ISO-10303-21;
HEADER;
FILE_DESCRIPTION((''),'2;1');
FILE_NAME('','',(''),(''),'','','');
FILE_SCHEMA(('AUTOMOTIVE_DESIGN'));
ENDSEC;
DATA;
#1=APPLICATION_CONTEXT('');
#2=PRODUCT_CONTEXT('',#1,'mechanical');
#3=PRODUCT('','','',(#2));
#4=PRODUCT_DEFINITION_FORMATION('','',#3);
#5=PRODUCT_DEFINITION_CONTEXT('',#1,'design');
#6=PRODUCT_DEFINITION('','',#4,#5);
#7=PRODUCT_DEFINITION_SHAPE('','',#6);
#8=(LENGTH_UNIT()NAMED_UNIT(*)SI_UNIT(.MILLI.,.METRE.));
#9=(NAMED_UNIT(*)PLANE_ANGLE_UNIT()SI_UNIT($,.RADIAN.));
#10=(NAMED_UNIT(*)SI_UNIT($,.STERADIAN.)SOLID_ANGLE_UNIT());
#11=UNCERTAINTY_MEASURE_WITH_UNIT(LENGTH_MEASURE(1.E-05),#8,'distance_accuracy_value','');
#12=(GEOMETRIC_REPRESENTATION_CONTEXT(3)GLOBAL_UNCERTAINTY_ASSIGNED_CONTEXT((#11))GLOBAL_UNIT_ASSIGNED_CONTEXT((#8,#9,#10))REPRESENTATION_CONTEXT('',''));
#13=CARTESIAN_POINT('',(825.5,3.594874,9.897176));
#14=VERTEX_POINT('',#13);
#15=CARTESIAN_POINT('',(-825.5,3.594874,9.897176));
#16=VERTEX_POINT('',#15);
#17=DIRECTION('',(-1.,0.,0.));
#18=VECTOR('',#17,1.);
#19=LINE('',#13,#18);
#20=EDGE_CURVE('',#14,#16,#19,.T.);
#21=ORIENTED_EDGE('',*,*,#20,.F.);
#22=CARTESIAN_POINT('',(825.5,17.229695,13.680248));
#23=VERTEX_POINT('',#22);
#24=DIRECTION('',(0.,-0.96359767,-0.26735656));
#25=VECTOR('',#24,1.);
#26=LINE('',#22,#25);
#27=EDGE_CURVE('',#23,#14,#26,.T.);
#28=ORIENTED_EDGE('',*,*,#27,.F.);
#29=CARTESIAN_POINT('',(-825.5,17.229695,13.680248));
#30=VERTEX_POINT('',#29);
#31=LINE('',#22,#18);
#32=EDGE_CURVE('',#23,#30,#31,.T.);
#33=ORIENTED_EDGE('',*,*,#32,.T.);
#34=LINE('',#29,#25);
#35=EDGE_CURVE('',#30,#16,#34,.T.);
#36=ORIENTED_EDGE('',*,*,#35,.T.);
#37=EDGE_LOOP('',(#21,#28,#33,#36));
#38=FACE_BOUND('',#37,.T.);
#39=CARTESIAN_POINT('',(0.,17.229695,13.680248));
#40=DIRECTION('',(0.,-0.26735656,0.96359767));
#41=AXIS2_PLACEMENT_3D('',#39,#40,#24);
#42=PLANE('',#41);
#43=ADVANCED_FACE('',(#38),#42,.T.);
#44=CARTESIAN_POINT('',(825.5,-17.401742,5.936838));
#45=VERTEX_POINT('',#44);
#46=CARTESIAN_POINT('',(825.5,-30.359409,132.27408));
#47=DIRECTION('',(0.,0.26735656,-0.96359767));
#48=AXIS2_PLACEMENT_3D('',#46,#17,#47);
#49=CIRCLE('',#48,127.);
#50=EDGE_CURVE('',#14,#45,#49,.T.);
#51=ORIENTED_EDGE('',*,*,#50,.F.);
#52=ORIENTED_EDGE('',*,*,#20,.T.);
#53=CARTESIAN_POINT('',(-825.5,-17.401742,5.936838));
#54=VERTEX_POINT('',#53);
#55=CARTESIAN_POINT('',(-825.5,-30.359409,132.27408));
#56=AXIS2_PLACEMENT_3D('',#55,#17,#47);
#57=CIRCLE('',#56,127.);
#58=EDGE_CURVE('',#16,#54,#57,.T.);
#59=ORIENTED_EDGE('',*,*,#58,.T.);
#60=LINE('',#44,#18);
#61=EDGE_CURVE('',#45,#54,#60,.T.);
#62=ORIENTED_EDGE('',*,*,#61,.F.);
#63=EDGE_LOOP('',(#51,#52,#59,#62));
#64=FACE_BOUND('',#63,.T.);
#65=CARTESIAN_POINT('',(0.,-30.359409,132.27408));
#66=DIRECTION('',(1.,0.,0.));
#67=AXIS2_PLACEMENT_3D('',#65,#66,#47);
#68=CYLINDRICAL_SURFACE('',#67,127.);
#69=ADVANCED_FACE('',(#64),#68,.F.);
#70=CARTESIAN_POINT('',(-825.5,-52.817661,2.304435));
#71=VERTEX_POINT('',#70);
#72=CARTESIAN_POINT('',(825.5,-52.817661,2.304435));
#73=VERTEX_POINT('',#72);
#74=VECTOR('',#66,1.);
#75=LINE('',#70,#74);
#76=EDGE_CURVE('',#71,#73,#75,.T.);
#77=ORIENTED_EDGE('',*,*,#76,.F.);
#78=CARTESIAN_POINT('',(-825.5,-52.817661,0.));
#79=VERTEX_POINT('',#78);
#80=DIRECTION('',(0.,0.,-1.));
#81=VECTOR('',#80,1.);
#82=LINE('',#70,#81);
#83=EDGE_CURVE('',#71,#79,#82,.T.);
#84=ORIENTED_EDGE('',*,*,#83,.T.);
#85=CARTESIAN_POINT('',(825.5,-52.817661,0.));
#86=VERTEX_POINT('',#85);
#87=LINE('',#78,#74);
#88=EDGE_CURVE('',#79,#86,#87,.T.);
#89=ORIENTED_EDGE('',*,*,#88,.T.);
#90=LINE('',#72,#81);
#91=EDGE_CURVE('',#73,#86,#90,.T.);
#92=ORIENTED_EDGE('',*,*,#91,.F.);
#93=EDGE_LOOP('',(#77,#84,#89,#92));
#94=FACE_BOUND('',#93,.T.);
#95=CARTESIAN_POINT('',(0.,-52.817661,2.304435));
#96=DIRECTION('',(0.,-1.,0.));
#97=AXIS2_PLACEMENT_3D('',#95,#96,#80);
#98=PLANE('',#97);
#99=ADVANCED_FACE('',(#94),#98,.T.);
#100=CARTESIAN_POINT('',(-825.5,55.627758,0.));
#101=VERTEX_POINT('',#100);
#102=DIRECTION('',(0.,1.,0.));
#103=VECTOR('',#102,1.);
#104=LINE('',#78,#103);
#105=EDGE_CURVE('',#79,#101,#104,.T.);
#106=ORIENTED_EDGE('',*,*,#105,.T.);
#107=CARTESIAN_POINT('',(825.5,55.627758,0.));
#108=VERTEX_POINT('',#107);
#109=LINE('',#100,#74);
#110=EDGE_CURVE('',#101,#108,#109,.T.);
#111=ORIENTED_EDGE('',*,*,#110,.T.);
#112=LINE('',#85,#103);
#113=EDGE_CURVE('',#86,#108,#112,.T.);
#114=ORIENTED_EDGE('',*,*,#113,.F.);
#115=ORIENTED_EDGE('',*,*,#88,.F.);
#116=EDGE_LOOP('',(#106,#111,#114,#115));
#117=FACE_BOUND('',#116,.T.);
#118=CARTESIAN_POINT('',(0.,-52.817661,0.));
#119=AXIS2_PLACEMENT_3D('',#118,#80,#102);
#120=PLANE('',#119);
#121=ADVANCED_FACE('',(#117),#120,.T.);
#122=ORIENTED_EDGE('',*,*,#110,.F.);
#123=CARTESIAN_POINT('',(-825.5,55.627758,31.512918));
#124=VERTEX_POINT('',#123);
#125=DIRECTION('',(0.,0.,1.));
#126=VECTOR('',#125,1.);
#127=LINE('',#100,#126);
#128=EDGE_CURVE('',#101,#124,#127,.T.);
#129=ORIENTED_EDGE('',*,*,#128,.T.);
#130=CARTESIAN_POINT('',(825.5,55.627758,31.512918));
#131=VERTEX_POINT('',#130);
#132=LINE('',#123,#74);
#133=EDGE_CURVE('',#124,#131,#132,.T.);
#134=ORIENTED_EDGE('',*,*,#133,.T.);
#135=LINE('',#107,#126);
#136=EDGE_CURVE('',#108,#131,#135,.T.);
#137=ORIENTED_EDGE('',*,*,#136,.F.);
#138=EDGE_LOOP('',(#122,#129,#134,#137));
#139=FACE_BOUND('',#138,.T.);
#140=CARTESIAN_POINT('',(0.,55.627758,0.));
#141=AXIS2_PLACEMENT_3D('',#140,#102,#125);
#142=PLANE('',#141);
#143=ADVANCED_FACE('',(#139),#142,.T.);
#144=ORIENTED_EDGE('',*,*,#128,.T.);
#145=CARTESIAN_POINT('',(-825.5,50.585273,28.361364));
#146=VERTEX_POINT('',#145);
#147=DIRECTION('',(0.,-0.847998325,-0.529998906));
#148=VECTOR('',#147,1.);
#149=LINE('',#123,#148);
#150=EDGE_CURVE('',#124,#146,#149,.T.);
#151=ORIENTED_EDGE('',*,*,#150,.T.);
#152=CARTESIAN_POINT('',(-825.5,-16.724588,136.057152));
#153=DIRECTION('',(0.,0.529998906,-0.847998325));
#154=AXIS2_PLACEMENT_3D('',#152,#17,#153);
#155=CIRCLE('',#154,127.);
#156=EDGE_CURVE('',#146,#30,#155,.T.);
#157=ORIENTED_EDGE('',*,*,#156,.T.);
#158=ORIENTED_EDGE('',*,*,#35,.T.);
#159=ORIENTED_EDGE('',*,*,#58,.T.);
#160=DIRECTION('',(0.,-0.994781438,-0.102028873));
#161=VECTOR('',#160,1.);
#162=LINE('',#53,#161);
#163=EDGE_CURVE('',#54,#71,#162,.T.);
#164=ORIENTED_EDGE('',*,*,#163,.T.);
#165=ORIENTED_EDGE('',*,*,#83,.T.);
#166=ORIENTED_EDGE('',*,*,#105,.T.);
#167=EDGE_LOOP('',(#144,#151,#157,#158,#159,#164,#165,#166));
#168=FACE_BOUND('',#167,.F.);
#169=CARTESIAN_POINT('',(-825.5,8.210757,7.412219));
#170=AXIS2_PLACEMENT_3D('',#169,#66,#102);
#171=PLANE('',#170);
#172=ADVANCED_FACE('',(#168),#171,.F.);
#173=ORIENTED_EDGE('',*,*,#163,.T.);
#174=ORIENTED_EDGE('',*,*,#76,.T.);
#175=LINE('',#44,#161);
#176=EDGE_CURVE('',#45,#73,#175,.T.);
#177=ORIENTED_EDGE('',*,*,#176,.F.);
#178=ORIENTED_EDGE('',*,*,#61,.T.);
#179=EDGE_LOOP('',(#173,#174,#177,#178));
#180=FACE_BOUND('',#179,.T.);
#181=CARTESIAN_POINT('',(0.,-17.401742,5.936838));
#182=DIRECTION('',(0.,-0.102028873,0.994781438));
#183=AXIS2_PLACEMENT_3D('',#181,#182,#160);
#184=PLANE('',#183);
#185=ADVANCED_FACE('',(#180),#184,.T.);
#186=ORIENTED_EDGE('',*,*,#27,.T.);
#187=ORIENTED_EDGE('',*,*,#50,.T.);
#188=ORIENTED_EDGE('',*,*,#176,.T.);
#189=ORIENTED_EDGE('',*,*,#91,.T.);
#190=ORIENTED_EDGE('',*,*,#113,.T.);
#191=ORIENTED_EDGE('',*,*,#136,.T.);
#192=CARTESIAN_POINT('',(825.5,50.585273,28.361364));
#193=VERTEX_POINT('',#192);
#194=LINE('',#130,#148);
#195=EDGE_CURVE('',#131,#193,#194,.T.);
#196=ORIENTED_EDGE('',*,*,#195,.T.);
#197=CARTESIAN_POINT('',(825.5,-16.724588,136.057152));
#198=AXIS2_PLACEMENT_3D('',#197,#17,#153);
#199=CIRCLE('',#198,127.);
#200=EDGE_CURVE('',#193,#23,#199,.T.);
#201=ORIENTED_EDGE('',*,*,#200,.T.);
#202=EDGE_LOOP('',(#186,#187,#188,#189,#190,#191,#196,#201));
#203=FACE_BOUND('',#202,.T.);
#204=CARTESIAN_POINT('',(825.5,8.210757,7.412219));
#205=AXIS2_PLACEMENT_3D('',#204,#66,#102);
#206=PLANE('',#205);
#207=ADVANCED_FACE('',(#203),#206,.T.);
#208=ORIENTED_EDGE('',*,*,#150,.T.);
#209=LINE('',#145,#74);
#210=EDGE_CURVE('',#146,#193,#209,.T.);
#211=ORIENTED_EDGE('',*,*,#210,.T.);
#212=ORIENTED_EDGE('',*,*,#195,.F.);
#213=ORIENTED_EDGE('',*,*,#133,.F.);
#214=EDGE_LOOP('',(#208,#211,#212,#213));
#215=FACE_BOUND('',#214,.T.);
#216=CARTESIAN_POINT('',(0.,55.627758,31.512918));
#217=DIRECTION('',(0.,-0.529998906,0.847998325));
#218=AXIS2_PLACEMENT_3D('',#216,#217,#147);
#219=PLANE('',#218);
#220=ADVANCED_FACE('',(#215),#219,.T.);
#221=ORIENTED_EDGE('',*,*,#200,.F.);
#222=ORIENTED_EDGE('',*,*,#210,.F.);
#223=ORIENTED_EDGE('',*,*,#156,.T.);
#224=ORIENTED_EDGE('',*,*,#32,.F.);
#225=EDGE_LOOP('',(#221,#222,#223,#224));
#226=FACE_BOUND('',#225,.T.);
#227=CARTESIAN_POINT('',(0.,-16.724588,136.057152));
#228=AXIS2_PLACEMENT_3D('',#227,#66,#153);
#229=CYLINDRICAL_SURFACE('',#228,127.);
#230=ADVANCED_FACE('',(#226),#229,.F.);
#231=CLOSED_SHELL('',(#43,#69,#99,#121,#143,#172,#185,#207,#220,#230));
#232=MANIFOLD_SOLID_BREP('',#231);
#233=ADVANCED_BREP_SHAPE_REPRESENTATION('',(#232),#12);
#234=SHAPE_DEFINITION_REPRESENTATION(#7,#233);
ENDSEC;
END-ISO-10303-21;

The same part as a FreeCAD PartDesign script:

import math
import FreeCAD as App
import Part
import Sketcher
Q = App.Units.Quantity

doc = App.newDocument("Part")
body = doc.addObject("PartDesign::Body", "Body")

sketch1 = doc.addObject("Sketcher::SketchObject", "Sketch")
body.addObject(sketch1)
sketch1.AttachmentSupport = (doc.YZ_Plane, [""])
sketch1.MapMode = "FlatFace"
sketch1.addGeometry([
    Part.LineSegment(App.Vector(-17.4, 5.9, 0), App.Vector(-52.8, 2.3, 0)),
    Part.LineSegment(App.Vector(-52.8, 2.3, 0), App.Vector(-52.8, 0, 0)),
    Part.LineSegment(App.Vector(-52.8, 0, 0), App.Vector(55.6, 0, 0)),
    Part.LineSegment(App.Vector(55.6, 0, 0), App.Vector(55.6, 31.5, 0)),
    Part.LineSegment(App.Vector(55.6, 31.5, 0), App.Vector(50.6, 28.4, 0)),
    Part.ArcOfCircle(Part.Circle(App.Vector(-16.7, 136.1, 0), App.Vector(0, 0, 1), 127), math.radians(-74.49), math.radians(-57.99)),
    Part.LineSegment(App.Vector(17.2, 13.7, 0), App.Vector(3.6, 9.9, 0)),
    Part.ArcOfCircle(Part.Circle(App.Vector(-30.4, 132.3, 0), App.Vector(0, 0, 1), 127), math.radians(-84.14), math.radians(-74.49)),
], False)
sketch1.addConstraint([
    Sketcher.Constraint("Coincident", 0, 2, 1, 1),
    Sketcher.Constraint("Coincident", 1, 2, 2, 1),
    Sketcher.Constraint("Coincident", 2, 2, 3, 1),
    Sketcher.Constraint("Coincident", 3, 2, 4, 1),
    Sketcher.Constraint("Tangent", 4, 2, 5, 2),
    Sketcher.Constraint("Tangent", 5, 1, 6, 1),
    Sketcher.Constraint("Tangent", 6, 2, 7, 2),
    Sketcher.Constraint("Tangent", 7, 1, 0, 1),
    Sketcher.Constraint("Vertical", 1),
    Sketcher.Constraint("Horizontal", 2),
    Sketcher.Constraint("Vertical", 3),
    Sketcher.Constraint("Equal", 5, 7),
    Sketcher.Constraint("PointOnObject", 1, 2, -1),
    Sketcher.Constraint("Radius", 5, Q("5 in")),
    Sketcher.Constraint("DistanceX", 2, 1, 2, 2, 108.44542),
    Sketcher.Constraint("DistanceX", 6, 2, 4, 2, 46.990399),
    Sketcher.Constraint("Distance", 0, 35.601709),
    Sketcher.Constraint("Distance", 4, 5.946339),
    Sketcher.Constraint("Distance", 6, 14.14991),
    Sketcher.Constraint("DistanceY", 1, 2, 1, 1, 2.304435),
    Sketcher.Constraint("DistanceY", 3, 1, 3, 2, 31.512918),
    Sketcher.Constraint("DistanceX", 5, 3, -1, 1, 16.724588),
])
pad1 = doc.addObject("PartDesign::Pad", "Pad")
body.addObject(pad1)
pad1.Profile = sketch1
pad1.Length = Q("65 in")
pad1.Midplane = True

doc.recompute()
